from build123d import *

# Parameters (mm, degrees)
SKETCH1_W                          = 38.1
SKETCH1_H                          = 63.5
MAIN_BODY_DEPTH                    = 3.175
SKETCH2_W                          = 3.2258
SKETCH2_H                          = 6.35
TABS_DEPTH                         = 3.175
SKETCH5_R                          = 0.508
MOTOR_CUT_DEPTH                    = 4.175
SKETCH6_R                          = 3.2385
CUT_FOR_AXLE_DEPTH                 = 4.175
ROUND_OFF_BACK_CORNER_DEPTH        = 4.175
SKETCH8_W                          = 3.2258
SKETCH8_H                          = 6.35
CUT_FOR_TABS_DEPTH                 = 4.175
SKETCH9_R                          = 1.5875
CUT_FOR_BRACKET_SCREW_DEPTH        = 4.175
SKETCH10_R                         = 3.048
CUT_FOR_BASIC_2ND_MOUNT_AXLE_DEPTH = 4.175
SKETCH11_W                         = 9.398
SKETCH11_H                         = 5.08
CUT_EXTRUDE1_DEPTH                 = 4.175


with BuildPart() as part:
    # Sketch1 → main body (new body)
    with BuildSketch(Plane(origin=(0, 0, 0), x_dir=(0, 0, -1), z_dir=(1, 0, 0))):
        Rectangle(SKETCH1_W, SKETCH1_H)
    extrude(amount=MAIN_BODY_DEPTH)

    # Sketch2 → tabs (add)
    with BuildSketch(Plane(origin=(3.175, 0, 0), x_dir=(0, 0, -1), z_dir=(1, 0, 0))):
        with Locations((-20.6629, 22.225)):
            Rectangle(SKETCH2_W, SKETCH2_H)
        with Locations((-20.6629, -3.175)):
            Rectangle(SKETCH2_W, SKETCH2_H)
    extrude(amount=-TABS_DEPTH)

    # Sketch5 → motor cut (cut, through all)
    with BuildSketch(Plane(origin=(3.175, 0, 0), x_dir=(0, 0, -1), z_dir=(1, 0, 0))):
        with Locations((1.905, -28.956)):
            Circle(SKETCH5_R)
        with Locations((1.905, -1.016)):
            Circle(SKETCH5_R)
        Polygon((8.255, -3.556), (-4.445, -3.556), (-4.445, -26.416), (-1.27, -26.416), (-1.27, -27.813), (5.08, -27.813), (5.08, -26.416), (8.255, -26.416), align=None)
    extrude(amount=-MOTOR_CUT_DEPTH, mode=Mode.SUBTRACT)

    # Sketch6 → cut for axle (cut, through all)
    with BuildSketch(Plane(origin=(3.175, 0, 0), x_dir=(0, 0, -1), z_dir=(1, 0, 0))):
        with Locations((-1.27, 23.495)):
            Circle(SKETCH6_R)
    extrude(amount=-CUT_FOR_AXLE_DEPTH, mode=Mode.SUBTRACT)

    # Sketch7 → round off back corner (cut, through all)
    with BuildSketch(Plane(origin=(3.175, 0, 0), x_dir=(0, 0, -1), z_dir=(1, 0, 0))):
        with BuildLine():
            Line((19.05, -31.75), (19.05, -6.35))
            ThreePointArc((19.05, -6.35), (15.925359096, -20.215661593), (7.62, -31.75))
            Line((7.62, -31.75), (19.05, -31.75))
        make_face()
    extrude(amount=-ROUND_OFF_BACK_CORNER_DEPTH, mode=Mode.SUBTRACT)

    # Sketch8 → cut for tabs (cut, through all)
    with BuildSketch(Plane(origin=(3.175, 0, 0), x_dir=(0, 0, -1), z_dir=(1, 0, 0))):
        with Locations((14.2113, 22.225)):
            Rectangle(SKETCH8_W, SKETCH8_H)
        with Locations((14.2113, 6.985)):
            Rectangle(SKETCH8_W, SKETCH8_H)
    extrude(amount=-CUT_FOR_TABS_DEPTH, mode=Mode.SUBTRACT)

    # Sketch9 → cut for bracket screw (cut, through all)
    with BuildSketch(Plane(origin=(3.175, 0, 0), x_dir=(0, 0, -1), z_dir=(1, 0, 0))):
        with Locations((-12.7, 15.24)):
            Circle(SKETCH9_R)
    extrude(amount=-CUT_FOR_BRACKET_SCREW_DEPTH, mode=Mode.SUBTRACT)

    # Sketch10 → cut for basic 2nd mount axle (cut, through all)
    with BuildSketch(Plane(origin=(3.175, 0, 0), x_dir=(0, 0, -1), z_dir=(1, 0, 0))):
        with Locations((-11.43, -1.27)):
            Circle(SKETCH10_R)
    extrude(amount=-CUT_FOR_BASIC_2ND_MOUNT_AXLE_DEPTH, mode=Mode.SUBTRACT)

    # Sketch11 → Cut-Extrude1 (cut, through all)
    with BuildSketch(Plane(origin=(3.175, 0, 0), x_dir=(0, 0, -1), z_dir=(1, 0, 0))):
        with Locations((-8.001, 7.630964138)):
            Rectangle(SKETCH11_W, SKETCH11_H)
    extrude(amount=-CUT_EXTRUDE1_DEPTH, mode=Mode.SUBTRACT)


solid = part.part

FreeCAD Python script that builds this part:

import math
import FreeCAD as App
import Part
import Sketcher
from FreeCAD import Vector
Q = App.Units.Quantity

doc = App.newDocument("Part")
body = doc.addObject("PartDesign::Body", "Body")

sketch1 = body.newObject("Sketcher::SketchObject", "Sketch")
sketch1.AttachmentSupport = (doc.getObject("YZ_Plane"), [""])
sketch1.MapMode = "FlatFace"
sketch1.addGeometry(Part.LineSegment(Vector(32, 19, 0), Vector(-32, 19, 0)), False)
sketch1.addGeometry(Part.LineSegment(Vector(-32, 19, 0), Vector(-32, -19, 0)), False)
sketch1.addGeometry(Part.LineSegment(Vector(-32, -19, 0), Vector(32, -19, 0)), False)
sketch1.addGeometry(Part.LineSegment(Vector(32, -19, 0), Vector(32, 19, 0)), False)
sketch1.addConstraint(Sketcher.Constraint("Coincident", 0, 2, 1, 1))
sketch1.addConstraint(Sketcher.Constraint("Coincident", 1, 2, 2, 1))
sketch1.addConstraint(Sketcher.Constraint("Coincident", 2, 2, 3, 1))
sketch1.addConstraint(Sketcher.Constraint("Coincident", 3, 2, 0, 1))
sketch1.addConstraint(Sketcher.Constraint("Horizontal", 0))
sketch1.addConstraint(Sketcher.Constraint("Vertical", 1))
sketch1.addConstraint(Sketcher.Constraint("Horizontal", 2))
sketch1.addConstraint(Sketcher.Constraint("Vertical", 3))
sketch1.addConstraint(Sketcher.Constraint("Symmetric", 0, 2, 2, 2, -1, 1))
sketch1.addConstraint(Sketcher.Constraint("DistanceX", 0, 2, 0, 1, Q("2.5 in")))
sketch1.addConstraint(Sketcher.Constraint("DistanceY", 1, 2, 1, 1, Q("1.5 in")))
pad1 = body.newObject("PartDesign::Pad", "Pad")
pad1.Profile = sketch1
pad1.Length = Q("0.125 in")

sketch2 = body.newObject("Sketcher::SketchObject", "Sketch001")
sketch2.AttachmentSupport = (doc.getObject("YZ_Plane"), [""])
sketch2.MapMode = "FlatFace"
sketch2.AttachmentOffset = App.Placement(Vector(0, 0, 0.125 * 25.4), App.Rotation())
sketch2.addGeometry(Part.LineSegment(Vector(25.4, 22.3, 0), Vector(19.1, 22.3, 0)), False)
sketch2.addGeometry(Part.LineSegment(Vector(19.1, 22.3, 0), Vector(19.1, 19.1, 0)), False)
sketch2.addGeometry(Part.LineSegment(Vector(19.1, 19.1, 0), Vector(25.4, 19.1, 0)), False)
sketch2.addGeometry(Part.LineSegment(Vector(25.4, 19.1, 0), Vector(25.4, 22.3, 0)), False)
sketch2.addGeometry(Part.LineSegment(Vector(0, 22.3, 0), Vector(-6.3, 22.3, 0)), False)
sketch2.addGeometry(Part.LineSegment(Vector(-6.3, 22.3, 0), Vector(-6.3, 19.1, 0)), False)
sketch2.addGeometry(Part.LineSegment(Vector(-6.3, 19.1, 0), Vector(0, 19.1, 0)), False)
sketch2.addGeometry(Part.LineSegment(Vector(0, 19.1, 0), Vector(0, 22.3, 0)), False)
sketch2.addConstraint(Sketcher.Constraint("Coincident", 0, 2, 1, 1))
sketch2.addConstraint(Sketcher.Constraint("Coincident", 1, 2, 2, 1))
sketch2.addConstraint(Sketcher.Constraint("Coincident", 2, 2, 3, 1))
sketch2.addConstraint(Sketcher.Constraint("Coincident", 3, 2, 0, 1))
sketch2.addConstraint(Sketcher.Constraint("Coincident", 4, 2, 5, 1))
sketch2.addConstraint(Sketcher.Constraint("Coincident", 5, 2, 6, 1))
sketch2.addConstraint(Sketcher.Constraint("Coincident", 6, 2, 7, 1))
sketch2.addConstraint(Sketcher.Constraint("Coincident", 7, 2, 4, 1))
sketch2.addConstraint(Sketcher.Constraint("Horizontal", 0))
sketch2.addConstraint(Sketcher.Constraint("Vertical", 1))
sketch2.addConstraint(Sketcher.Constraint("Horizontal", 2))
sketch2.addConstraint(Sketcher.Constraint("Vertical", 3))
sketch2.addConstraint(Sketcher.Constraint("Horizontal", 4))
sketch2.addConstraint(Sketcher.Constraint("Vertical", 5))
sketch2.addConstraint(Sketcher.Constraint("Horizontal", 6))
sketch2.addConstraint(Sketcher.Constraint("Vertical", 7))
sketch2.addConstraint(Sketcher.Constraint("PointOnObject", 6, 2, -2))
sketch2.addConstraint(Sketcher.Constraint("Horizontal", 3, 2, 4, 2))
sketch2.addConstraint(Sketcher.Constraint("Horizontal", 2, 2, 5, 2))
sketch2.addConstraint(Sketcher.Constraint("Equal", 2, 4))
sketch2.addConstraint(Sketcher.Constraint("DistanceX", -1, 1, 2, 2, Q("1 in")))
sketch2.addConstraint(Sketcher.Constraint("DistanceX", 0, 2, 0, 1, Q("0.25 in")))
sketch2.addConstraint(Sketcher.Constraint("DistanceY", 1, 2, 1, 1, Q("0.127 in")))
sketch2.addConstraint(Sketcher.Constraint("DistanceY", -1, 1, 1, 2, Q("0.75 in")))
pad2 = body.newObject("PartDesign::Pad", "Pad001")
pad2.Profile = sketch2
pad2.Length = Q("0.125 in")
pad2.Reversed = True

sketch3 = body.newObject("Sketcher::SketchObject", "Sketch002")
sketch3.AttachmentSupport = (doc.getObject("YZ_Plane"), [""])
sketch3.MapMode = "FlatFace"
sketch3.AttachmentOffset = App.Placement(Vector(0, 0, 0.125 * 25.4), App.Rotation())
sketch3.addGeometry(Part.Circle(Vector(-29, -1.9, 0), Vector(0, 0, 1), 0.5), False)
sketch3.addGeometry(Part.Circle(Vector(-1, -1.9, 0), Vector(0, 0, 1), 0.5), False)
sketch3.addGeometry(Part.LineSegment(Vector(-3.6, -8.3, 0), Vector(-3.6, 4.4, 0)), False)
sketch3.addGeometry(Part.LineSegment(Vector(-3.6, 4.4, 0), Vector(-26.4, 4.4, 0)), False)
sketch3.addGeometry(Part.LineSegment(Vector(-26.4, 4.4, 0), Vector(-26.4, 1.3, 0)), False)
sketch3.addGeometry(Part.LineSegment(Vector(-26.4, 1.3, 0), Vector(-27.8, 1.3, 0)), False)
sketch3.addGeometry(Part.LineSegment(Vector(-27.8, 1.3, 0), Vector(-27.8, -5.1, 0)), False)
sketch3.addGeometry(Part.LineSegment(Vector(-27.8, -5.1, 0), Vector(-26.4, -5.1, 0)), False)
sketch3.addGeometry(Part.LineSegment(Vector(-26.4, -5.1, 0), Vector(-26.4, -8.3, 0)), False)
sketch3.addGeometry(Part.LineSegment(Vector(-26.4, -8.3, 0), Vector(-3.6, -8.3, 0)), False)
sketch3.addConstraint(Sketcher.Constraint("Coincident", 2, 2, 3, 1))
sketch3.addConstraint(Sketcher.Constraint("Coincident", 3, 2, 4, 1))
sketch3.addConstraint(Sketcher.Constraint("Coincident", 4, 2, 5, 1))
sketch3.addConstraint(Sketcher.Constraint("Coincident", 5, 2, 6, 1))
sketch3.addConstraint(Sketcher.Constraint("Coincident", 6, 2, 7, 1))
sketch3.addConstraint(Sketcher.Constraint("Coincident", 7, 2, 8, 1))
sketch3.addConstraint(Sketcher.Constraint("Coincident", 8, 2, 9, 1))
sketch3.addConstraint(Sketcher.Constraint("Coincident", 9, 2, 2, 1))
sketch3.addConstraint(Sketcher.Constraint("Vertical", 2))
sketch3.addConstraint(Sketcher.Constraint("Horizontal", 3))
sketch3.addConstraint(Sketcher.Constraint("Vertical", 4))
sketch3.addConstraint(Sketcher.Constraint("Horizontal", 5))
sketch3.addConstraint(Sketcher.Constraint("Vertical", 6))
sketch3.addConstraint(Sketcher.Constraint("Horizontal", 7))
sketch3.addConstraint(Sketcher.Constraint("Vertical", 8))
sketch3.addConstraint(Sketcher.Constraint("Horizontal", 9))
sketch3.addConstraint(Sketcher.Constraint("Equal", 0, 1))
sketch3.addConstraint(Sketcher.Constraint("Horizontal", 0, 3, 1, 3))
sketch3.addConstraint(Sketcher.Constraint("Vertical", 4, 2, 7, 2))
sketch3.addConstraint(Sketcher.Constraint("Equal", 4, 8))
sketch3.addConstraint(Sketcher.Constraint("Diameter", 0, Q("0.04 in")))
sketch3.addConstraint(Sketcher.Constraint("DistanceX", 3, 2, 3, 1, Q("0.9 in")))
sketch3.addConstraint(Sketcher.Constraint("DistanceY", 2, 1, 2, 2, Q("0.5 in")))
sketch3.addConstraint(Sketcher.Constraint("DistanceX", 0, 3, 2, 2, Q("1 in")))
sketch3.addConstraint(Sketcher.Constraint("DistanceX", 3, 2, 1, 3, Q("1 in")))
sketch3.addConstraint(Sketcher.Constraint("DistanceY", 6, 2, 6, 1, Q("0.25 in")))
sketch3.addConstraint(Sketcher.Constraint("DistanceY", 6, 2, -1, 1, Q("0.2 in")))
sketch3.addConstraint(Sketcher.Constraint("DistanceX", 5, 2, 5, 1, Q("0.055 in")))
sketch3.addConstraint(Sketcher.Constraint("DistanceX", 0, 3, -1, 1, Q("1.14 in")))
sketch3.addConstraint(Sketcher.Constraint("DistanceY", 1, 3, 2, 2, Q("0.25 in")))
pocket1 = body.newObject("PartDesign::Pocket", "Pocket")
pocket1.Profile = sketch3
pocket1.Type = "ThroughAll"

sketch4 = body.newObject("Sketcher::SketchObject", "Sketch003")
sketch4.AttachmentSupport = (doc.getObject("YZ_Plane"), [""])
sketch4.MapMode = "FlatFace"
sketch4.AttachmentOffset = App.Placement(Vector(0, 0, 0.125 * 25.4), App.Rotation())
sketch4.addGeometry(Part.Circle(Vector(23.5, 1.3, 0), Vector(0, 0, 1), 3.2), False)
sketch4.addConstraint(Sketcher.Constraint("Diameter", 0, Q("0.255 in")))
sketch4.addConstraint(Sketcher.Constraint("DistanceY", -1, 1, 0, 3, Q("0.05 in")))
sketch4.addConstraint(Sketcher.Constraint("DistanceX", -1, 1, 0, 3, Q("0.925 in")))
pocket2 = body.newObject("PartDesign::Pocket", "Pocket001")
pocket2.Profile = sketch4
pocket2.Type = "ThroughAll"

sketch5 = body.newObject("Sketcher::SketchObject", "Sketch004")
sketch5.AttachmentSupport = (doc.getObject("YZ_Plane"), [""])
sketch5.MapMode = "FlatFace"
sketch5.AttachmentOffset = App.Placement(Vector(0, 0, 0.125 * 25.4), App.Rotation())
sketch5.addGeometry(Part.LineSegment(Vector(-32, -19, 0), Vector(-6, -19, 0)), False)
sketch5.addGeometry(Part.ArcOfCircle(Part.Circle(Vector(-6, 17, 0), Vector(0, 0, 1), 36), math.radians(-137), math.radians(-91)), False)
sketch5.addGeometry(Part.LineSegment(Vector(-32, -8, 0), Vector(-32, -19, 0)), False)
sketch5.addConstraint(Sketcher.Constraint("Coincident", 0, 2, 1, 2))
sketch5.addConstraint(Sketcher.Constraint("Coincident", 1, 1, 2, 1))
sketch5.addConstraint(Sketcher.Constraint("Coincident", 2, 2, 0, 1))
sketch5.addConstraint(Sketcher.Constraint("Horizontal", 0))
sketch5.addConstraint(Sketcher.Constraint("Vertical", 2))
sketch5.addConstraint(Sketcher.Constraint("Radius", 1, Q("1.4 in")))
sketch5.addConstraint(Sketcher.Constraint("DistanceX", 0, 1, 0, 2, Q("1 in")))
sketch5.addConstraint(Sketcher.Constraint("DistanceY", 2, 2, 2, 1, Q("0.45 in")))
sketch5.addConstraint(Sketcher.Constraint("DistanceY", 1, 1, -1, 1, Q("0.3 in")))
sketch5.addConstraint(Sketcher.Constraint("DistanceX", 0, 2, -1, 1, Q("0.25 in")))
pocket3 = body.newObject("PartDesign::Pocket", "Pocket002")
pocket3.Profile = sketch5
pocket3.Type = "ThroughAll"

sketch6 = body.newObject("Sketcher::SketchObject", "Sketch005")
sketch6.AttachmentSupport = (doc.getObject("YZ_Plane"), [""])
sketch6.MapMode = "FlatFace"
sketch6.AttachmentOffset = App.Placement(Vector(0, 0, 0.125 * 25.4), App.Rotation())
sketch6.addGeometry(Part.LineSegment(Vector(25.4, -12.6, 0), Vector(19.1, -12.6, 0)), False)
sketch6.addGeometry(Part.LineSegment(Vector(19.1, -12.6, 0), Vector(19.1, -15.8, 0)), False)
sketch6.addGeometry(Part.LineSegment(Vector(19.1, -15.8, 0), Vector(25.4, -15.8, 0)), False)
sketch6.addGeometry(Part.LineSegment(Vector(25.4, -15.8, 0), Vector(25.4, -12.6, 0)), False)
sketch6.addGeometry(Part.LineSegment(Vector(10.2, -12.6, 0), Vector(3.8, -12.6, 0)), False)
sketch6.addGeometry(Part.LineSegment(Vector(3.8, -12.6, 0), Vector(3.8, -15.8, 0)), False)
sketch6.addGeometry(Part.LineSegment(Vector(3.8, -15.8, 0), Vector(10.2, -15.8, 0)), False)
sketch6.addGeometry(Part.LineSegment(Vector(10.2, -15.8, 0), Vector(10.2, -12.6, 0)), False)
sketch6.addConstraint(Sketcher.Constraint("Coincident", 0, 2, 1, 1))
sketch6.addConstraint(Sketcher.Constraint("Coincident", 1, 2, 2, 1))
sketch6.addConstraint(Sketcher.Constraint("Coincident", 2, 2, 3, 1))
sketch6.addConstraint(Sketcher.Constraint("Coincident", 3, 2, 0, 1))
sketch6.addConstraint(Sketcher.Constraint("Coincident", 4, 2, 5, 1))
sketch6.addConstraint(Sketcher.Constraint("Coincident", 5, 2, 6, 1))
sketch6.addConstraint(Sketcher.Constraint("Coincident", 6, 2, 7, 1))
sketch6.addConstraint(Sketcher.Constraint("Coincident", 7, 2, 4, 1))
sketch6.addConstraint(Sketcher.Constraint("Horizontal", 0))
sketch6.addConstraint(Sketcher.Constraint("Vertical", 1))
sketch6.addConstraint(Sketcher.Constraint("Horizontal", 2))
sketch6.addConstraint(Sketcher.Constraint("Vertical", 3))
sketch6.addConstraint(Sketcher.Constraint("Horizontal", 4))
sketch6.addConstraint(Sketcher.Constraint("Vertical", 5))
sketch6.addConstraint(Sketcher.Constraint("Horizontal", 6))
sketch6.addConstraint(Sketcher.Constraint("Vertical", 7))
sketch6.addConstraint(Sketcher.Constraint("Horizontal", 3, 2, 4, 2))
sketch6.addConstraint(Sketcher.Constraint("Horizontal", 2, 2, 5, 2))
sketch6.addConstraint(Sketcher.Constraint("Equal", 2, 4))
sketch6.addConstraint(Sketcher.Constraint("DistanceX", -1, 1, 2, 2, Q("1 in")))
sketch6.addConstraint(Sketcher.Constraint("DistanceX", 0, 2, 0, 1, Q("0.25 in")))
sketch6.addConstraint(Sketcher.Constraint("DistanceX", -1, 1, 6, 2, Q("0.4 in")))
sketch6.addConstraint(Sketcher.Constraint("DistanceY", 1, 2, 1, 1, Q("0.127 in")))
sketch6.addConstraint(Sketcher.Constraint("DistanceY", 0, 2, -1, 1, Q("0.496 in")))
pocket4 = body.newObject("PartDesign::Pocket", "Pocket003")
pocket4.Profile = sketch6
pocket4.Type = "ThroughAll"

sketch7 = body.newObject("Sketcher::SketchObject", "Sketch006")
sketch7.AttachmentSupport = (doc.getObject("YZ_Plane"), [""])
sketch7.MapMode = "FlatFace"
sketch7.AttachmentOffset = App.Placement(Vector(0, 0, 0.125 * 25.4), App.Rotation())
sketch7.addGeometry(Part.Circle(Vector(15.2, 12.7, 0), Vector(0, 0, 1), 1.6), False)
sketch7.addConstraint(Sketcher.Constraint("Diameter", 0, Q("0.125 in")))
sketch7.addConstraint(Sketcher.Constraint("DistanceX", -1, 1, 0, 3, Q("0.6 in")))
sketch7.addConstraint(Sketcher.Constraint("DistanceY", -1, 1, 0, 3, Q("0.5 in")))
pocket5 = body.newObject("PartDesign::Pocket", "Pocket004")
pocket5.Profile = sketch7
pocket5.Type = "ThroughAll"

sketch8 = body.newObject("Sketcher::SketchObject", "Sketch007")
sketch8.AttachmentSupport = (doc.getObject("YZ_Plane"), [""])
sketch8.MapMode = "FlatFace"
sketch8.AttachmentOffset = App.Placement(Vector(0, 0, 0.125 * 25.4), App.Rotation())
sketch8.addGeometry(Part.Circle(Vector(-1.3, 11.4, 0), Vector(0, 0, 1), 3), False)
sketch8.addConstraint(Sketcher.Constraint("Diameter", 0, Q("0.24 in")))
sketch8.addConstraint(Sketcher.Constraint("DistanceX", 0, 3, -1, 1, Q("0.05 in")))
sketch8.addConstraint(Sketcher.Constraint("DistanceY", -1, 1, 0, 3, Q("0.45 in")))
pocket6 = body.newObject("PartDesign::Pocket", "Pocket005")
pocket6.Profile = sketch8
pocket6.Type = "ThroughAll"

sketch9 = body.newObject("Sketcher::SketchObject", "Sketch008")
sketch9.AttachmentSupport = (doc.getObject("YZ_Plane"), [""])
sketch9.MapMode = "FlatFace"
sketch9.AttachmentOffset = App.Placement(Vector(0, 0, 0.125 * 25.4), App.Rotation())
sketch9.addGeometry(Part.LineSegment(Vector(10, 13, 0), Vector(5, 13, 0)), False)
sketch9.addGeometry(Part.LineSegment(Vector(5, 13, 0), Vector(5, 3, 0)), False)
sketch9.addGeometry(Part.LineSegment(Vector(5, 3, 0), Vector(10, 3, 0)), False)
sketch9.addGeometry(Part.LineSegment(Vector(10, 3, 0), Vector(10, 13, 0)), False)
sketch9.addConstraint(Sketcher.Constraint("Coincident", 0, 2, 1, 1))
sketch9.addConstraint(Sketcher.Constraint("Coincident", 1, 2, 2, 1))
sketch9.addConstraint(Sketcher.Constraint("Coincident", 2, 2, 3, 1))
sketch9.addConstraint(Sketcher.Constraint("Coincident", 3, 2, 0, 1))
sketch9.addConstraint(Sketcher.Constraint("Horizontal", 0))
sketch9.addConstraint(Sketcher.Constraint("Vertical", 1))
sketch9.addConstraint(Sketcher.Constraint("Horizontal", 2))
sketch9.addConstraint(Sketcher.Constraint("Vertical", 3))
sketch9.addConstraint(Sketcher.Constraint("DistanceX", 0, 2, 0, 1, Q("0.2 in")))
sketch9.addConstraint(Sketcher.Constraint("DistanceY", 1, 2, 1, 1, Q("0.37 in")))
sketch9.addConstraint(Sketcher.Constraint("DistanceY", -1, 1, 0, 2, Q("0.5 in")))
sketch9.addConstraint(Sketcher.Constraint("DistanceX", -1, 1, 0, 2, 5.090964))
pocket7 = body.newObject("PartDesign::Pocket", "Pocket006")
pocket7.Profile = sketch9
pocket7.Type = "ThroughAll"

doc.recompute()
